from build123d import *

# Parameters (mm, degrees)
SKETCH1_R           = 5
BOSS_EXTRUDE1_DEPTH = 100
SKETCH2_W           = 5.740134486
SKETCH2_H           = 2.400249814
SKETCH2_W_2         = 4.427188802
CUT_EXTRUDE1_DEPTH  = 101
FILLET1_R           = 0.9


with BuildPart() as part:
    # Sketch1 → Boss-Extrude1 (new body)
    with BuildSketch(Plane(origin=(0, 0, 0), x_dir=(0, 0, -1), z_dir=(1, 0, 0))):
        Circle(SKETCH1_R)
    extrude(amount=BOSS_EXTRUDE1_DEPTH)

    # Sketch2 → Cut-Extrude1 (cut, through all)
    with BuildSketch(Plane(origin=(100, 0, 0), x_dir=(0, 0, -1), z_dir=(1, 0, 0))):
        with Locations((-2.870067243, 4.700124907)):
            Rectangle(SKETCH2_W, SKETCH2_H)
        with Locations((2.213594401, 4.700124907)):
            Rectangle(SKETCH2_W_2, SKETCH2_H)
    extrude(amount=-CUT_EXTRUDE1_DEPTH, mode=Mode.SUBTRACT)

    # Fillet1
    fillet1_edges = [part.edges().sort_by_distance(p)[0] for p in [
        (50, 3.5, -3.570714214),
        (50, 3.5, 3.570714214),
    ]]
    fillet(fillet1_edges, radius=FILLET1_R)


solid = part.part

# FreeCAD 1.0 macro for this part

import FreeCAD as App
import Part
import Sketcher

V = App.Vector


def edges_at(feature, points):
    """Names of the edges that pass closest to the given points."""
    edges = feature.Shape.Edges
    near = lambda p: min(range(len(edges)), key=lambda i: edges[i].distToShape(Part.Vertex(*p))[0])
    return sorted({f"Edge{near(p) + 1}" for p in points})

doc = App.newDocument("Part")
body = doc.addObject("PartDesign::Body", "Body")

# Sketch on YZ plane
sketch1 = body.newObject("Sketcher::SketchObject", "Sketch")
sketch1.AttachmentSupport = (doc.getObject("YZ_Plane"), [""])
sketch1.MapMode = "FlatFace"
sketch1.addGeometry(Part.Circle(V(0, 0, 0), V(0, 0, 1), 5), False)
sketch1.addConstraint(Sketcher.Constraint("Coincident", 0, 3, -1, 1))
sketch1.addConstraint(Sketcher.Constraint("Diameter", 0, 10.0))
pad1 = body.newObject("PartDesign::Pad", "Pad")
pad1.Profile = sketch1
pad1.Length = 100

# Sketch on YZ plane
sketch2 = body.newObject("Sketcher::SketchObject", "Sketch001")
sketch2.AttachmentSupport = (doc.getObject("YZ_Plane"), [""])
sketch2.MapMode = "FlatFace"
sketch2.AttachmentOffset = App.Placement(V(0, 0, 100), App.Rotation())
sketch2.addGeometry(Part.LineSegment(V(5.90025, 5.740134, 0), V(3.5, 5.740134, 0)), False)
sketch2.addGeometry(Part.LineSegment(V(3.5, 5.740134, 0), V(3.5, -4.427189, 0)), False)
sketch2.addGeometry(Part.LineSegment(V(3.5, -4.427189, 0), V(5.90025, -4.427189, 0)), False)
sketch2.addGeometry(Part.LineSegment(V(5.90025, -4.427189, 0), V(5.90025, 5.740134, 0)), False)
sketch2.addConstraint(Sketcher.Constraint("Coincident", 0, 2, 1, 1))
sketch2.addConstraint(Sketcher.Constraint("Coincident", 1, 2, 2, 1))
sketch2.addConstraint(Sketcher.Constraint("Coincident", 2, 2, 3, 1))
sketch2.addConstraint(Sketcher.Constraint("Coincident", 3, 2, 0, 1))
sketch2.addConstraint(Sketcher.Constraint("Horizontal", 0))
sketch2.addConstraint(Sketcher.Constraint("Vertical", 1))
sketch2.addConstraint(Sketcher.Constraint("Horizontal", 2))
sketch2.addConstraint(Sketcher.Constraint("Vertical", 3))
sketch2.addConstraint(Sketcher.Constraint("DistanceX", -1, 1, 0, 2, 3.5))
sketch2.addConstraint(Sketcher.Constraint("DistanceX", 0, 2, 0, 1, 2.40025))
sketch2.addConstraint(Sketcher.Constraint("DistanceY", 1, 2, 1, 1, 10.167323))
sketch2.addConstraint(Sketcher.Constraint("DistanceY", 1, 2, -1, 1, 4.427189))
pocket1 = body.newObject("PartDesign::Pocket", "Pocket")
pocket1.Profile = sketch2
pocket1.Type = "ThroughAll"
doc.recompute()

fillet = body.newObject("PartDesign::Fillet", "Fillet")
fillet.Base = (pocket1, edges_at(pocket1, [(50, 3.5, -3.571), (50, 3.5, 3.571)]))
fillet.Radius = 0.9

doc.recompute()
